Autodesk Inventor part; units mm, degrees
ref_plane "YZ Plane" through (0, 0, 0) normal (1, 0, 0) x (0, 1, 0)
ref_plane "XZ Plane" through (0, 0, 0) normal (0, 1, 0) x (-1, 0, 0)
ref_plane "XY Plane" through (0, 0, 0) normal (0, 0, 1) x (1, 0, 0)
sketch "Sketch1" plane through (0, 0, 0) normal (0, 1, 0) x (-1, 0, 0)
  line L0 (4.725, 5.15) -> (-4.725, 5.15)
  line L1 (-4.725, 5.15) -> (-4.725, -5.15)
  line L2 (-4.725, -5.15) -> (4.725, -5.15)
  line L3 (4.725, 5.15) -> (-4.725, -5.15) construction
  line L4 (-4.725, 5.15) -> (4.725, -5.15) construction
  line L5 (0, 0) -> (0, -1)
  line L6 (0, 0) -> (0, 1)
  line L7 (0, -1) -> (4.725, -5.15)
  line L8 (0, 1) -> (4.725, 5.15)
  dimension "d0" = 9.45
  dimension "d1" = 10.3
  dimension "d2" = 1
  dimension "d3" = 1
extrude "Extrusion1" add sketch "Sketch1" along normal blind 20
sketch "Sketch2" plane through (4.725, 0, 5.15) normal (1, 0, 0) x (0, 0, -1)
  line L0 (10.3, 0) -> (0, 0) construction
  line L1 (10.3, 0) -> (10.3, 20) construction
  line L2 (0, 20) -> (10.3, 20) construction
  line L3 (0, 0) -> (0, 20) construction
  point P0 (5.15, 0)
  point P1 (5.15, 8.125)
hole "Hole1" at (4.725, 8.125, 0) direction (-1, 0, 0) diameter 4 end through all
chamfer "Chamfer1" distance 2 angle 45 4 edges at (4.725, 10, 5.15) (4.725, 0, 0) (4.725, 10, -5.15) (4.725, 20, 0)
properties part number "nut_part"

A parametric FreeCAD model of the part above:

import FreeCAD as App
import Part
import Sketcher
from FreeCAD import Vector
Q = App.Units.Quantity


def edges_at(feature, points):
    """Names of the edges that pass closest to the given points."""
    edges = feature.Shape.Edges
    near = lambda p: min(range(len(edges)), key=lambda i: edges[i].distToShape(Part.Vertex(*p))[0])
    return sorted({f"Edge{near(p) + 1}" for p in points})


def add_polygon(sketch, points):
    """Adds a closed chain of lines whose ends are joined by coincident constraints."""
    first, n = sketch.GeometryCount, len(points)
    for a, b in zip(points, points[1:] + points[:1]):
        sketch.addGeometry(Part.LineSegment(App.Vector(*a, 0), App.Vector(*b, 0)), False)
    for i in range(n):
        sketch.addConstraint(Sketcher.Constraint("Coincident", first + i, 2, first + (i + 1) % n, 1))

doc = App.newDocument("Part")
params = doc.addObject("Spreadsheet::Sheet", "Params")
for row, (alias, value) in enumerate([
    ("sketch1_height", "10.3 mm"),
    ("sketch1_width", "9.45 mm"),
    ("pad1_length", "20 mm"),
    ("sketch2_diameter", "4 mm"),
    ("hole_diameter", "4 mm"),
    ("chamfer_size", "2 mm"),
], start=1):
    params.set(f"A{row}", alias)
    params.set(f"B{row}", "=" + value)
    params.setAlias(f"B{row}", alias)

body = doc.addObject("PartDesign::Body", "Body")

# Sketch on XZ plane
sketch1 = doc.addObject("Sketcher::SketchObject", "Sketch")
body.addObject(sketch1)
sketch1.AttachmentSupport = (doc.XZ_Plane, [""])
sketch1.MapMode = "FlatFace"
add_polygon(sketch1, [(0, 1), (-4.7, 5.2), (4.7, 5.2), (4.7, -5.2), (-4.7, -5.2), (0, -1)])  # lines 0-5
sketch1.addConstraint([
    Sketcher.Constraint("Horizontal", 1),
    Sketcher.Constraint("Vertical", 2),
    Sketcher.Constraint("Horizontal", 3),
    Sketcher.Constraint("Vertical", 5),
    Sketcher.Constraint("Symmetric", 0, 2, 2, 2, -1, 1),
    Sketcher.Constraint("Symmetric", 4, 2, 5, 2, -1, 1),
    Sketcher.Constraint("Vertical", 0, 2, 3, 2),
    Sketcher.Constraint("DistanceY", 2, 2, 2, 1, Q("10.3 mm")),
    Sketcher.Constraint("DistanceY", 4, 2, -1, 1, Q("1 mm")),
    Sketcher.Constraint("DistanceX", 1, 1, 1, 2, Q("9.45 mm")),
])
sketch1.setExpression("Constraints[13]", "Params.sketch1_height")
sketch1.setExpression("Constraints[15]", "Params.sketch1_width")
pad1 = doc.addObject("PartDesign::Pad", "Pad")
body.addObject(pad1)
pad1.Profile = sketch1
pad1.setExpression("Length", "Params.pad1_length")
pad1.Reversed = True

# Sketch on YZ plane
sketch2 = doc.addObject("Sketcher::SketchObject", "Sketch001")
body.addObject(sketch2)
sketch2.AttachmentSupport = (doc.YZ_Plane, [""])
sketch2.MapMode = "FlatFace"
sketch2.AttachmentOffset = App.Placement(Vector(0, 0, 4.725), App.Rotation())
sketch2.addGeometry(Part.Circle(Vector(8.1, 0, 0), Vector(0, 0, 1), 2), False)
sketch2.addConstraint([
    Sketcher.Constraint("PointOnObject", 0, 3, -1),
    Sketcher.Constraint("Diameter", 0, Q("4 mm")),
    Sketcher.Constraint("DistanceX", -1, 1, 0, 3, Q("8.125 mm")),
])
sketch2.setExpression("Constraints[1]", "Params.sketch2_diameter")
doc.recompute()
hole = doc.addObject("PartDesign::Hole", "Hole")
body.addObject(hole)
hole.Profile = sketch2
hole.ThreadType = "None"
hole.setExpression("Diameter", "Params.hole_diameter")
hole.DepthType = "ThroughAll"
doc.recompute()

chamfer = doc.addObject("PartDesign::Chamfer", "Chamfer")
body.addObject(chamfer)
chamfer.Base = (hole, edges_at(hole, [
    (4.725, 10, 5.15),
    (4.725, 0, 0),
    (4.725, 10, -5.15),
    (4.725, 20, 0),
]))
chamfer.setExpression("Size", "Params.chamfer_size")

doc.recompute()
